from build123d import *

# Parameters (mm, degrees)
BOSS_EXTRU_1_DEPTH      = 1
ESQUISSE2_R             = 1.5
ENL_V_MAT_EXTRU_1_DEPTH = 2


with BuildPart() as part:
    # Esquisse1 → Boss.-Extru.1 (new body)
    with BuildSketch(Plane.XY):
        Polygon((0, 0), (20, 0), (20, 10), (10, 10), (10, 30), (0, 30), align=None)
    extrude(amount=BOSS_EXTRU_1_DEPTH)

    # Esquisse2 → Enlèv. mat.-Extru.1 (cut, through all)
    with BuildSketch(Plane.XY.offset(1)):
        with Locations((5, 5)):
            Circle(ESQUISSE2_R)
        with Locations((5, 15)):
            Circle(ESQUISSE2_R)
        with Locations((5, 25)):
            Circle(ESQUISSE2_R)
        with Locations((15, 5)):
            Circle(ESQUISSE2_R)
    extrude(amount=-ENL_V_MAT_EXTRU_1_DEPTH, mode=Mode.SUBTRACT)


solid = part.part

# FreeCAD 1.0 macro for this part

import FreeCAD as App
import Part
import Sketcher

V = App.Vector


def add_polygon(sketch, points):
    """Adds a closed chain of lines whose ends are joined by coincident constraints."""
    first, n = sketch.GeometryCount, len(points)
    for a, b in zip(points, points[1:] + points[:1]):
        sketch.addGeometry(Part.LineSegment(App.Vector(*a, 0), App.Vector(*b, 0)), False)
    for i in range(n):
        sketch.addConstraint(Sketcher.Constraint("Coincident", first + i, 2, first + (i + 1) % n, 1))

doc = App.newDocument("Part")
body = doc.addObject("PartDesign::Body", "Body")

# Sketch on XY plane
sketch1 = body.newObject("Sketcher::SketchObject", "Sketch")
sketch1.AttachmentSupport = (doc.getObject("XY_Plane"), [""])
sketch1.MapMode = "FlatFace"
add_polygon(sketch1, [(0, 0), (20, 0), (20, 10), (10, 10), (10, 30), (0, 30)])  # lines 0-5
sketch1.addConstraint([
    Sketcher.Constraint("Horizontal", 0),
    Sketcher.Constraint("Vertical", 1),
    Sketcher.Constraint("Horizontal", 2),
    Sketcher.Constraint("Vertical", 3),
    Sketcher.Constraint("Horizontal", 4),
    Sketcher.Constraint("Vertical", 5),
    Sketcher.Constraint("Coincident", 5, 2, -1, 1),
    Sketcher.Constraint("Equal", 2, 4),
    Sketcher.Constraint("Equal", 4, 1),
    Sketcher.Constraint("Equal", 0, 3),
    Sketcher.Constraint("DistanceX", 0, 1, 0, 2, 20.0),
])
pad1 = body.newObject("PartDesign::Pad", "Pad")
pad1.Profile = sketch1
pad1.Length = 1

# Sketch on XY plane
sketch2 = body.newObject("Sketcher::SketchObject", "Sketch001")
sketch2.AttachmentSupport = (doc.getObject("XY_Plane"), [""])
sketch2.MapMode = "FlatFace"
sketch2.AttachmentOffset = App.Placement(V(0, 0, 1), App.Rotation())
sketch2.addGeometry([
    Part.Circle(V(5, 5, 0), V(0, 0, 1), 1.5),
    Part.Circle(V(5, 15, 0), V(0, 0, 1), 1.5),
    Part.Circle(V(5, 25, 0), V(0, 0, 1), 1.5),
    Part.Circle(V(15, 5, 0), V(0, 0, 1), 1.5),
], False)
sketch2.addConstraint([
    Sketcher.Constraint("Equal", 0, 1),
    Sketcher.Constraint("Equal", 1, 2),
    Sketcher.Constraint("Equal", 2, 3),
    Sketcher.Constraint("Horizontal", 0, 3, 3, 3),
    Sketcher.Constraint("Vertical", 0, 3, 1, 3),
    Sketcher.Constraint("Vertical", 1, 3, 2, 3),
    Sketcher.Constraint("Diameter", 0, 3.0),
    Sketcher.Constraint("DistanceX", -1, 1, 0, 3, 5.0),
    Sketcher.Constraint("DistanceY", -1, 1, 0, 3, 5.0),
    Sketcher.Constraint("DistanceY", -1, 1, 1, 3, 15.0),
    Sketcher.Constraint("DistanceY", -1, 1, 2, 3, 25.0),
    Sketcher.Constraint("DistanceX", -1, 1, 3, 3, 15.0),
])
pocket1 = body.newObject("PartDesign::Pocket", "Pocket")
pocket1.Profile = sketch2
pocket1.Type = "ThroughAll"

doc.recompute()
